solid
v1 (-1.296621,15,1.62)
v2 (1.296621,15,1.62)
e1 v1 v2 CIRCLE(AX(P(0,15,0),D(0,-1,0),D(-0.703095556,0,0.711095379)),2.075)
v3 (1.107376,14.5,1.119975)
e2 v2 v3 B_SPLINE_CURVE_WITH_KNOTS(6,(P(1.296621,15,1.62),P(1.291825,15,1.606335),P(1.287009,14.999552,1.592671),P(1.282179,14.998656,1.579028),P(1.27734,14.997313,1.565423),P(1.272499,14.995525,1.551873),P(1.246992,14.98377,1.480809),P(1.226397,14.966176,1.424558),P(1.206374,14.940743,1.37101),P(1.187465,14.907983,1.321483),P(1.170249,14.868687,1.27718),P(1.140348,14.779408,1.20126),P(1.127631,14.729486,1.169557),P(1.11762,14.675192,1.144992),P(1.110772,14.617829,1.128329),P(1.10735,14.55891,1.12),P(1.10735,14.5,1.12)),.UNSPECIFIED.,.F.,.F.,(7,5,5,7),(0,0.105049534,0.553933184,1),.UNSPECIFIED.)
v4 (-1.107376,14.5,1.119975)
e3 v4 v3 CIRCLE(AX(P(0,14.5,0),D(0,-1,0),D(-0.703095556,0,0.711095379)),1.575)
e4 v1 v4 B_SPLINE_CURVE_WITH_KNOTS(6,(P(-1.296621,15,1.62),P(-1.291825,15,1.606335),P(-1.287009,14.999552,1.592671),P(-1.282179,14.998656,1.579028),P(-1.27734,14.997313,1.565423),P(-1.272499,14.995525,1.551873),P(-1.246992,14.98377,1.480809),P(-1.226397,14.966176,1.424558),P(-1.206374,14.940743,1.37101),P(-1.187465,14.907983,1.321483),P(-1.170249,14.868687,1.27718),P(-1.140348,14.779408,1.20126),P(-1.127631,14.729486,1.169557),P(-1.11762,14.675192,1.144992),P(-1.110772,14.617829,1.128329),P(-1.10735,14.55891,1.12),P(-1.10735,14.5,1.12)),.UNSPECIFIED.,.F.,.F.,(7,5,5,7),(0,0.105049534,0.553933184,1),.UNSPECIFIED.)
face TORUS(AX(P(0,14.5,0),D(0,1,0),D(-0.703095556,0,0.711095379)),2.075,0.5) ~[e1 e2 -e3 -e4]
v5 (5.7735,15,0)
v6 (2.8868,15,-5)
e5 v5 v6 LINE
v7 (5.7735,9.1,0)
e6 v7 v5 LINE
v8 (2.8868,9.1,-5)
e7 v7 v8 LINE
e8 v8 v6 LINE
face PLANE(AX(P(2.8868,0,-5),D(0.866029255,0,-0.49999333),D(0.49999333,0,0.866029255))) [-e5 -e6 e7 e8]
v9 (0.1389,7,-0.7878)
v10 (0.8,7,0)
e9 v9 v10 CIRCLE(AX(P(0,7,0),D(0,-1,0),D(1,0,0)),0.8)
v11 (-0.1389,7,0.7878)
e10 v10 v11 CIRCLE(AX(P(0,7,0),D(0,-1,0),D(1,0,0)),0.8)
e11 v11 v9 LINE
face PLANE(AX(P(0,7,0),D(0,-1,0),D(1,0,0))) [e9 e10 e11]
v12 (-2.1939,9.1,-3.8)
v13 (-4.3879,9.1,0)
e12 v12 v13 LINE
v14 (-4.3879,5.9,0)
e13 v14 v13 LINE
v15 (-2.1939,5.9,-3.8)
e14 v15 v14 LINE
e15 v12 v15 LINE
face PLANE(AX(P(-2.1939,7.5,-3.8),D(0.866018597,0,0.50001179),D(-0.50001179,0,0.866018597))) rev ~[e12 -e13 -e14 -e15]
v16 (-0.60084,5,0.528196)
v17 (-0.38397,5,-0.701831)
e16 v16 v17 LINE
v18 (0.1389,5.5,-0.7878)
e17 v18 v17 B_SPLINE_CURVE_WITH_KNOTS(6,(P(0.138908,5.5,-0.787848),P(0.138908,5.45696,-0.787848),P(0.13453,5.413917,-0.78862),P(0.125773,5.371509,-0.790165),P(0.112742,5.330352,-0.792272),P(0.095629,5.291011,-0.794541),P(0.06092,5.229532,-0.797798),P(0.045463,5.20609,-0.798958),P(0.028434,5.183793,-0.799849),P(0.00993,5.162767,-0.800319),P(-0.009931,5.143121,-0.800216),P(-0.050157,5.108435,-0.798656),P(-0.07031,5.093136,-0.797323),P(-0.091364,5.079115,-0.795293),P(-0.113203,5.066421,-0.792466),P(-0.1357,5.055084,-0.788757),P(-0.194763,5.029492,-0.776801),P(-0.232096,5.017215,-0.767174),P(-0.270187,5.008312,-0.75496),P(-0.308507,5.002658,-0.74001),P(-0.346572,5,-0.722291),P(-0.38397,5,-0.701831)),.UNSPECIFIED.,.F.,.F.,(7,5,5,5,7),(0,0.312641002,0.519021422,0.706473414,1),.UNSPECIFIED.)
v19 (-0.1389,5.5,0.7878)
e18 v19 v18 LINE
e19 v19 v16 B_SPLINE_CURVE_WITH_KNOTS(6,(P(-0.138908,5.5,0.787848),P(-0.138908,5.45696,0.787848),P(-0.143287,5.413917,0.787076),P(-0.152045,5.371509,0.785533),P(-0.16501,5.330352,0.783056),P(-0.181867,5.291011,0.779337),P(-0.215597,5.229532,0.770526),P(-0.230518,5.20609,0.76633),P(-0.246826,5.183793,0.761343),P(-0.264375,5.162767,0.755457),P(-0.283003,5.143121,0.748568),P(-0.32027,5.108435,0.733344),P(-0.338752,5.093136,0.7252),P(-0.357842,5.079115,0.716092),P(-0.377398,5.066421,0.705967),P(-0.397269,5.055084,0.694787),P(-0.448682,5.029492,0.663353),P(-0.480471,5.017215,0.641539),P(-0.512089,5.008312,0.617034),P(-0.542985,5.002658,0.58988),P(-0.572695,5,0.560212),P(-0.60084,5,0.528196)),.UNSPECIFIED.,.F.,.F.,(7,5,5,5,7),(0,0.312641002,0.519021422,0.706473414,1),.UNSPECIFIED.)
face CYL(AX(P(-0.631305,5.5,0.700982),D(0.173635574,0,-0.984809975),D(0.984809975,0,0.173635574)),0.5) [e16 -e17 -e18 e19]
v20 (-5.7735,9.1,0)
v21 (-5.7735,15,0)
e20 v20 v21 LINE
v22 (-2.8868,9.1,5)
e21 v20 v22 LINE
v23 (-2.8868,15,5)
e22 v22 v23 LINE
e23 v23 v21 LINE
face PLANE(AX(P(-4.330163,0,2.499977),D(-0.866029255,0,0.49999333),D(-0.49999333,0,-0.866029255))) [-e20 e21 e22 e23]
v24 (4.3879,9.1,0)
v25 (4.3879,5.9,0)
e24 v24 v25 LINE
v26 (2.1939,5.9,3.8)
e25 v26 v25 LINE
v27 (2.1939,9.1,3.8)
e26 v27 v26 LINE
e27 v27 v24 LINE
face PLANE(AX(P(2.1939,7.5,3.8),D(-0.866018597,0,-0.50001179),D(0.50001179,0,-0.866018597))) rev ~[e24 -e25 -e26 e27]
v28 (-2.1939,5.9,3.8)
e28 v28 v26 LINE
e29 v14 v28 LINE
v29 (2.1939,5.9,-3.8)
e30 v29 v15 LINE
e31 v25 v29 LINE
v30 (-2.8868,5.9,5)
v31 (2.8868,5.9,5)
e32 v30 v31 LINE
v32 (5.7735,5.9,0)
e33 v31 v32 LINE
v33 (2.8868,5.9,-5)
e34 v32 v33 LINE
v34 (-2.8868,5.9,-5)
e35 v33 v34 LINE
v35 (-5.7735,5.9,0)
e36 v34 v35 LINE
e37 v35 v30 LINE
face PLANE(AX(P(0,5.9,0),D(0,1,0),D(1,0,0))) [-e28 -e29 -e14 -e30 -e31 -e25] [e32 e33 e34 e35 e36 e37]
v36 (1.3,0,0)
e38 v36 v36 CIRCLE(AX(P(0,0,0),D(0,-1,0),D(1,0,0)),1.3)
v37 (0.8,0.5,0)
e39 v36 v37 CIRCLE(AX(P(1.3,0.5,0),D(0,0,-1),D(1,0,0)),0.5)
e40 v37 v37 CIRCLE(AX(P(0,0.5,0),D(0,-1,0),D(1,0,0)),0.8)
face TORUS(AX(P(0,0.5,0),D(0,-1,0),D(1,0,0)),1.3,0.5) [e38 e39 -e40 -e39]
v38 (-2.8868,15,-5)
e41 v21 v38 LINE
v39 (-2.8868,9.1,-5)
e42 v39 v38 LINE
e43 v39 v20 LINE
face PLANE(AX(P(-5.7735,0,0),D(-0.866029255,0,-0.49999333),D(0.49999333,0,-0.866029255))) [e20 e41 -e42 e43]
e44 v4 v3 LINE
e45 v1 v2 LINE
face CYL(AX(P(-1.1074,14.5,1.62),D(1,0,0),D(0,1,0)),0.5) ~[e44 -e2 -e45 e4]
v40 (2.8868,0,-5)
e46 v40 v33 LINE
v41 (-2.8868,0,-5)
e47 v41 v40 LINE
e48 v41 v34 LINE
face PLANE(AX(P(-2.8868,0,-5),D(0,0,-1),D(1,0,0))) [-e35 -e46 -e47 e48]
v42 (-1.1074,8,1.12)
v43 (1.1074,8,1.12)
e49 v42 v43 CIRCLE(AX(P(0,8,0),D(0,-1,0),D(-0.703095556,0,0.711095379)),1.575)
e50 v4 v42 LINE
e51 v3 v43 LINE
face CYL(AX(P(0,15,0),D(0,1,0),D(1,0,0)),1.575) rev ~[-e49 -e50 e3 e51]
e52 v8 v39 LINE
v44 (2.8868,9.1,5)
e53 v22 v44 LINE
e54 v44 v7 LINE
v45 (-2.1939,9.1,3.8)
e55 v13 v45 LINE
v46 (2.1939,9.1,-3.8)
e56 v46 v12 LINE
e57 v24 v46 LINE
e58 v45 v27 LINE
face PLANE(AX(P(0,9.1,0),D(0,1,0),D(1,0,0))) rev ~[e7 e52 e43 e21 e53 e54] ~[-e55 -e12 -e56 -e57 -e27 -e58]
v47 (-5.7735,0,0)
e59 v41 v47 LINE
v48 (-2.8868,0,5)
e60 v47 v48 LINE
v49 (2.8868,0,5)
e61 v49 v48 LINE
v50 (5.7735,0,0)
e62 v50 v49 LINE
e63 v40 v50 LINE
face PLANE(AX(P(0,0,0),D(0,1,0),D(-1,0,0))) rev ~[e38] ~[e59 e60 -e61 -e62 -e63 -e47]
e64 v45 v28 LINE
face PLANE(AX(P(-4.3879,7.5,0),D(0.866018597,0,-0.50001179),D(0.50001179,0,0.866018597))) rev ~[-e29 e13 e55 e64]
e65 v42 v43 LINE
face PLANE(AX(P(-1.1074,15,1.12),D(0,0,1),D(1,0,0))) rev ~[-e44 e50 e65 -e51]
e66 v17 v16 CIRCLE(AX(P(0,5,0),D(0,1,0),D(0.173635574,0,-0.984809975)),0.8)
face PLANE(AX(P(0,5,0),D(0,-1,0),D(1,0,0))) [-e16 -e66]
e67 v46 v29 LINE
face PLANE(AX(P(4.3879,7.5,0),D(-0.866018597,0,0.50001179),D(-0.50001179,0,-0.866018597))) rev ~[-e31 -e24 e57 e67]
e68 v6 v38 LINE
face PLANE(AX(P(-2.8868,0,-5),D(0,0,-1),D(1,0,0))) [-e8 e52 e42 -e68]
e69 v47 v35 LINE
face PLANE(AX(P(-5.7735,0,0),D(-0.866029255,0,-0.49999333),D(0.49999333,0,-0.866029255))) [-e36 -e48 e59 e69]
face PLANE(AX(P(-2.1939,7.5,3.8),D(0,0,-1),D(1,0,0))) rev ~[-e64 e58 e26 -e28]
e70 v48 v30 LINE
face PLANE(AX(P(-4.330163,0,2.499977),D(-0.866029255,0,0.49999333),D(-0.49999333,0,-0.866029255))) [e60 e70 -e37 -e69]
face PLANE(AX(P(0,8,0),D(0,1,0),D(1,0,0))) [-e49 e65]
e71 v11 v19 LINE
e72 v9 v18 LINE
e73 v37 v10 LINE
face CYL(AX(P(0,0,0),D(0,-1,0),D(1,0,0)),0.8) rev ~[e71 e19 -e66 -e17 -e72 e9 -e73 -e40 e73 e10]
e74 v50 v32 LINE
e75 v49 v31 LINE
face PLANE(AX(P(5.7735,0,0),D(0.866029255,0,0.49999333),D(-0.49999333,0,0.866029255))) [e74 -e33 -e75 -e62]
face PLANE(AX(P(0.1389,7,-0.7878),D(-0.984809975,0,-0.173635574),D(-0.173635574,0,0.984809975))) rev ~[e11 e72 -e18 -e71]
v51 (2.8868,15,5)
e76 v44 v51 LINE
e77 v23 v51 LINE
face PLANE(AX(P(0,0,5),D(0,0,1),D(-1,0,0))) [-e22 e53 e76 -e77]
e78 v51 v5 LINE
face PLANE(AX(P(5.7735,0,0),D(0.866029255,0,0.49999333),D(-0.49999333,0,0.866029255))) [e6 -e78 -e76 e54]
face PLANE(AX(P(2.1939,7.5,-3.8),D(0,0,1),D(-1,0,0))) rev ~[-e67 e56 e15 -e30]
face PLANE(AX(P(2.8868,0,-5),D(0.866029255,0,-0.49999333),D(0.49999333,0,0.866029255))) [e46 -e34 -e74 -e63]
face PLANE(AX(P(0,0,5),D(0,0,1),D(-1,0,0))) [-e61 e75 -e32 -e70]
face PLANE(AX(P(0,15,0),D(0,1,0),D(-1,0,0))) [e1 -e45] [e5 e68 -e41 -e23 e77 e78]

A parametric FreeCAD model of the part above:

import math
import FreeCAD as App
import Part
import Sketcher
Q = App.Units.Quantity


def edges_at(feature, points):
    """Names of the edges that pass closest to the given points."""
    edges = feature.Shape.Edges
    near = lambda p: min(range(len(edges)), key=lambda i: edges[i].distToShape(Part.Vertex(*p))[0])
    return sorted({f"Edge{near(p) + 1}" for p in points})

doc = App.newDocument("Part")
body = doc.addObject("PartDesign::Body", "Body")

# Sketch on XZ plane
sketch1 = doc.addObject("Sketcher::SketchObject", "Sketch")
body.addObject(sketch1)
sketch1.AttachmentSupport = (doc.XZ_Plane, [""])
sketch1.MapMode = "FlatFace"
sketch1.addGeometry([
    Part.LineSegment(App.Vector(-6, 0, 0), App.Vector(-3, 5, 0)),  # 0
    Part.LineSegment(App.Vector(-3, 5, 0), App.Vector(3, 5, 0)),  # 1
    Part.LineSegment(App.Vector(3, 5, 0), App.Vector(6, 0, 0)),  # 2
    Part.LineSegment(App.Vector(6, 0, 0), App.Vector(3, -5, 0)),  # 3
    Part.LineSegment(App.Vector(3, -5, 0), App.Vector(-3, -5, 0)),  # 4
    Part.LineSegment(App.Vector(-3, -5, 0), App.Vector(-6, 0, 0)),  # 5
], False)
sketch1.addConstraint([
    Sketcher.Constraint("Coincident", 0, 2, 1, 1),
    Sketcher.Constraint("Coincident", 1, 2, 2, 1),
    Sketcher.Constraint("Coincident", 2, 2, 3, 1),
    Sketcher.Constraint("Coincident", 3, 2, 4, 1),
    Sketcher.Constraint("Coincident", 4, 2, 5, 1),
    Sketcher.Constraint("Coincident", 5, 2, 0, 1),
    Sketcher.Constraint("Horizontal", 1),
    Sketcher.Constraint("Horizontal", 4),
    Sketcher.Constraint("Symmetric", 0, 2, 3, 2, -1, 1),
    Sketcher.Constraint("Symmetric", 2, 2, 5, 2, -1, 1),
    Sketcher.Constraint("PointOnObject", 2, 2, -1),
    Sketcher.Constraint("Parallel", 2, 5),
    Sketcher.Constraint("Vertical", 1, 2, 3, 2),
    Sketcher.Constraint("DistanceY", 3, 2, 1, 2, 10.0),
    Sketcher.Constraint("Angle", 0, Q("60.0004 deg")),
    Sketcher.Constraint("DistanceX", 1, 1, 1, 2, 5.7736),
])
pad1 = doc.addObject("PartDesign::Pad", "Pad")
body.addObject(pad1)
pad1.Profile = sketch1
pad1.Length = 15
pad1.Reversed = True

# Sketch on XZ plane
sketch2 = doc.addObject("Sketcher::SketchObject", "Sketch001")
body.addObject(sketch2)
sketch2.AttachmentSupport = (doc.XZ_Plane, [""])
sketch2.MapMode = "FlatFace"
sketch2.AttachmentOffset = App.Placement(App.Vector(0, 0, -15), App.Rotation())
sketch2.addGeometry([
    Part.ArcOfCircle(Part.Circle(App.Vector(0, 0, 0), App.Vector(0, 0, 1), 1.6), math.radians(135), math.radians(405)),
    Part.LineSegment(App.Vector(1.1, 1.1, 0), App.Vector(-1.1, 1.1, 0)),
], False)
sketch2.addConstraint([
    Sketcher.Constraint("Coincident", 0, 1, 1, 2),
    Sketcher.Constraint("Coincident", 1, 1, 0, 2),
    Sketcher.Constraint("Horizontal", 1),
    Sketcher.Constraint("Coincident", 0, 3, -1, 1),
    Sketcher.Constraint("Radius", 0, 1.575),
    Sketcher.Constraint("DistanceY", -1, 1, 0, 1, 1.12),
])
pocket1 = doc.addObject("PartDesign::Pocket", "Pocket")
body.addObject(pocket1)
pocket1.Profile = sketch2
pocket1.Length = 7
pocket1.Reversed = True

# Sketch on XZ plane
sketch3 = doc.addObject("Sketcher::SketchObject", "Sketch002")
body.addObject(sketch3)
sketch3.AttachmentSupport = (doc.XZ_Plane, [""])
sketch3.MapMode = "FlatFace"
sketch3.addGeometry(Part.Circle(App.Vector(0, 0, 0), App.Vector(0, 0, 1), 0.8), False)
sketch3.addConstraint([
    Sketcher.Constraint("Coincident", 0, 3, -1, 1),
    Sketcher.Constraint("Diameter", 0, 1.6),
])
pocket2 = doc.addObject("PartDesign::Pocket", "Pocket001")
body.addObject(pocket2)
pocket2.Profile = sketch3
pocket2.Length = 7

# Sketch on XZ plane
sketch4 = doc.addObject("Sketcher::SketchObject", "Sketch003")
body.addObject(sketch4)
sketch4.AttachmentSupport = (doc.XZ_Plane, [""])
sketch4.MapMode = "FlatFace"
sketch4.AttachmentOffset = App.Placement(App.Vector(0, 0, -7), App.Rotation())
sketch4.addGeometry([
    Part.ArcOfCircle(Part.Circle(App.Vector(0, 0, 0), App.Vector(0, 0, 1), 0.8), math.radians(100), math.radians(280)),
    Part.LineSegment(App.Vector(-0.1, 0.8, 0), App.Vector(0.1, -0.8, 0)),
], False)
sketch4.addConstraint([
    Sketcher.Constraint("Coincident", 0, 1, 1, 1),
    Sketcher.Constraint("Coincident", 1, 2, 0, 2),
    Sketcher.Constraint("Coincident", 0, 3, -1, 1),
    Sketcher.Constraint("Radius", 0, 0.8),
    Sketcher.Constraint("Angle", 1, Q("-80.0007 deg")),
    Sketcher.Constraint("DistanceX", 0, 1, -1, 1, 0.139),
])
pad2 = doc.addObject("PartDesign::Pad", "Pad001")
body.addObject(pad2)
pad2.Profile = sketch4
pad2.Length = 2

# Sketch on XZ plane
sketch5 = doc.addObject("Sketcher::SketchObject", "Sketch004")
body.addObject(sketch5)
sketch5.AttachmentSupport = (doc.XZ_Plane, [""])
sketch5.MapMode = "FlatFace"
sketch5.AttachmentOffset = App.Placement(App.Vector(0, 0, -7.5), App.Rotation())
sketch5.addGeometry([
    Part.LineSegment(App.Vector(2.9, 5, 0), App.Vector(5.8, 0, 0)),  # 0
    Part.LineSegment(App.Vector(5.8, 0, 0), App.Vector(2.9, -5, 0)),  # 1
    Part.LineSegment(App.Vector(2.9, -5, 0), App.Vector(-2.9, -5, 0)),  # 2
    Part.LineSegment(App.Vector(-2.9, -5, 0), App.Vector(-5.8, 0, 0)),  # 3
    Part.LineSegment(App.Vector(-5.8, 0, 0), App.Vector(-2.9, 5, 0)),  # 4
    Part.LineSegment(App.Vector(-2.9, 5, 0), App.Vector(2.9, 5, 0)),  # 5
    Part.LineSegment(App.Vector(-2.2, 3.8, 0), App.Vector(-4.4, 0, 0)),  # 6
    Part.LineSegment(App.Vector(-4.4, 0, 0), App.Vector(-2.2, -3.8, 0)),  # 7
    Part.LineSegment(App.Vector(-2.2, -3.8, 0), App.Vector(2.2, -3.8, 0)),  # 8
    Part.LineSegment(App.Vector(2.2, -3.8, 0), App.Vector(4.4, 0, 0)),  # 9
    Part.LineSegment(App.Vector(4.4, 0, 0), App.Vector(2.2, 3.8, 0)),  # 10
    Part.LineSegment(App.Vector(2.2, 3.8, 0), App.Vector(-2.2, 3.8, 0)),  # 11
], False)
sketch5.addConstraint([
    Sketcher.Constraint("Coincident", 0, 2, 1, 1),
    Sketcher.Constraint("Coincident", 1, 2, 2, 1),
    Sketcher.Constraint("Coincident", 2, 2, 3, 1),
    Sketcher.Constraint("Coincident", 3, 2, 4, 1),
    Sketcher.Constraint("Coincident", 4, 2, 5, 1),
    Sketcher.Constraint("Coincident", 5, 2, 0, 1),
    Sketcher.Constraint("Coincident", 6, 2, 7, 1),
    Sketcher.Constraint("Coincident", 7, 2, 8, 1),
    Sketcher.Constraint("Coincident", 8, 2, 9, 1),
    Sketcher.Constraint("Coincident", 9, 2, 10, 1),
    Sketcher.Constraint("Coincident", 10, 2, 11, 1),
    Sketcher.Constraint("Coincident", 11, 2, 6, 1),
    Sketcher.Constraint("Horizontal", 2),
    Sketcher.Constraint("Horizontal", 5),
    Sketcher.Constraint("Horizontal", 8),
    Sketcher.Constraint("Horizontal", 11),
    Sketcher.Constraint("Symmetric", 0, 2, 3, 2, -1, 1),
    Sketcher.Constraint("Symmetric", 1, 2, 4, 2, -1, 1),
    Sketcher.Constraint("Symmetric", 6, 2, 9, 2, -1, 1),
    Sketcher.Constraint("Symmetric", 7, 2, 10, 2, -1, 1),
    Sketcher.Constraint("PointOnObject", 0, 2, -1),
    Sketcher.Constraint("PointOnObject", 6, 2, -1),
    Sketcher.Constraint("Parallel", 0, 3),
    Sketcher.Constraint("Parallel", 4, 6),
    Sketcher.Constraint("Parallel", 3, 7),
    Sketcher.Constraint("Parallel", 6, 9),
    Sketcher.Constraint("Vertical", 2, 2, 4, 2),
    Sketcher.Constraint("DistanceY", 2, 2, 7, 2, 1.2),
    Sketcher.Constraint("Angle", 0, Q("-60.0004 deg")),
    Sketcher.Constraint("DistanceY", 1, 2, -1, 1, 5.0),
    Sketcher.Constraint("DistanceX", 2, 2, 2, 1, 5.7736),
    Sketcher.Constraint("DistanceX", 8, 1, 8, 2, 4.3878),
])
pocket3 = doc.addObject("PartDesign::Pocket", "Pocket002")
body.addObject(pocket3)
pocket3.Profile = sketch5
pocket3.Length = 3.2
pocket3.Midplane = True
doc.recompute()

fillet = doc.addObject("PartDesign::Fillet", "Fillet")
body.addObject(fillet)
fillet.Base = (pocket3, edges_at(pocket3, [(-0.8, 0, 0), (0, 15, -1.575), (0, 15, 1.12)]))
fillet.Radius = 0.5
doc.recompute()

fillet2 = doc.addObject("PartDesign::Fillet", "Fillet001")
body.addObject(fillet2)
fillet2.Base = (fillet, edges_at(fillet, [(0, 5, 0)]))
fillet2.Radius = 0.5

doc.recompute()
